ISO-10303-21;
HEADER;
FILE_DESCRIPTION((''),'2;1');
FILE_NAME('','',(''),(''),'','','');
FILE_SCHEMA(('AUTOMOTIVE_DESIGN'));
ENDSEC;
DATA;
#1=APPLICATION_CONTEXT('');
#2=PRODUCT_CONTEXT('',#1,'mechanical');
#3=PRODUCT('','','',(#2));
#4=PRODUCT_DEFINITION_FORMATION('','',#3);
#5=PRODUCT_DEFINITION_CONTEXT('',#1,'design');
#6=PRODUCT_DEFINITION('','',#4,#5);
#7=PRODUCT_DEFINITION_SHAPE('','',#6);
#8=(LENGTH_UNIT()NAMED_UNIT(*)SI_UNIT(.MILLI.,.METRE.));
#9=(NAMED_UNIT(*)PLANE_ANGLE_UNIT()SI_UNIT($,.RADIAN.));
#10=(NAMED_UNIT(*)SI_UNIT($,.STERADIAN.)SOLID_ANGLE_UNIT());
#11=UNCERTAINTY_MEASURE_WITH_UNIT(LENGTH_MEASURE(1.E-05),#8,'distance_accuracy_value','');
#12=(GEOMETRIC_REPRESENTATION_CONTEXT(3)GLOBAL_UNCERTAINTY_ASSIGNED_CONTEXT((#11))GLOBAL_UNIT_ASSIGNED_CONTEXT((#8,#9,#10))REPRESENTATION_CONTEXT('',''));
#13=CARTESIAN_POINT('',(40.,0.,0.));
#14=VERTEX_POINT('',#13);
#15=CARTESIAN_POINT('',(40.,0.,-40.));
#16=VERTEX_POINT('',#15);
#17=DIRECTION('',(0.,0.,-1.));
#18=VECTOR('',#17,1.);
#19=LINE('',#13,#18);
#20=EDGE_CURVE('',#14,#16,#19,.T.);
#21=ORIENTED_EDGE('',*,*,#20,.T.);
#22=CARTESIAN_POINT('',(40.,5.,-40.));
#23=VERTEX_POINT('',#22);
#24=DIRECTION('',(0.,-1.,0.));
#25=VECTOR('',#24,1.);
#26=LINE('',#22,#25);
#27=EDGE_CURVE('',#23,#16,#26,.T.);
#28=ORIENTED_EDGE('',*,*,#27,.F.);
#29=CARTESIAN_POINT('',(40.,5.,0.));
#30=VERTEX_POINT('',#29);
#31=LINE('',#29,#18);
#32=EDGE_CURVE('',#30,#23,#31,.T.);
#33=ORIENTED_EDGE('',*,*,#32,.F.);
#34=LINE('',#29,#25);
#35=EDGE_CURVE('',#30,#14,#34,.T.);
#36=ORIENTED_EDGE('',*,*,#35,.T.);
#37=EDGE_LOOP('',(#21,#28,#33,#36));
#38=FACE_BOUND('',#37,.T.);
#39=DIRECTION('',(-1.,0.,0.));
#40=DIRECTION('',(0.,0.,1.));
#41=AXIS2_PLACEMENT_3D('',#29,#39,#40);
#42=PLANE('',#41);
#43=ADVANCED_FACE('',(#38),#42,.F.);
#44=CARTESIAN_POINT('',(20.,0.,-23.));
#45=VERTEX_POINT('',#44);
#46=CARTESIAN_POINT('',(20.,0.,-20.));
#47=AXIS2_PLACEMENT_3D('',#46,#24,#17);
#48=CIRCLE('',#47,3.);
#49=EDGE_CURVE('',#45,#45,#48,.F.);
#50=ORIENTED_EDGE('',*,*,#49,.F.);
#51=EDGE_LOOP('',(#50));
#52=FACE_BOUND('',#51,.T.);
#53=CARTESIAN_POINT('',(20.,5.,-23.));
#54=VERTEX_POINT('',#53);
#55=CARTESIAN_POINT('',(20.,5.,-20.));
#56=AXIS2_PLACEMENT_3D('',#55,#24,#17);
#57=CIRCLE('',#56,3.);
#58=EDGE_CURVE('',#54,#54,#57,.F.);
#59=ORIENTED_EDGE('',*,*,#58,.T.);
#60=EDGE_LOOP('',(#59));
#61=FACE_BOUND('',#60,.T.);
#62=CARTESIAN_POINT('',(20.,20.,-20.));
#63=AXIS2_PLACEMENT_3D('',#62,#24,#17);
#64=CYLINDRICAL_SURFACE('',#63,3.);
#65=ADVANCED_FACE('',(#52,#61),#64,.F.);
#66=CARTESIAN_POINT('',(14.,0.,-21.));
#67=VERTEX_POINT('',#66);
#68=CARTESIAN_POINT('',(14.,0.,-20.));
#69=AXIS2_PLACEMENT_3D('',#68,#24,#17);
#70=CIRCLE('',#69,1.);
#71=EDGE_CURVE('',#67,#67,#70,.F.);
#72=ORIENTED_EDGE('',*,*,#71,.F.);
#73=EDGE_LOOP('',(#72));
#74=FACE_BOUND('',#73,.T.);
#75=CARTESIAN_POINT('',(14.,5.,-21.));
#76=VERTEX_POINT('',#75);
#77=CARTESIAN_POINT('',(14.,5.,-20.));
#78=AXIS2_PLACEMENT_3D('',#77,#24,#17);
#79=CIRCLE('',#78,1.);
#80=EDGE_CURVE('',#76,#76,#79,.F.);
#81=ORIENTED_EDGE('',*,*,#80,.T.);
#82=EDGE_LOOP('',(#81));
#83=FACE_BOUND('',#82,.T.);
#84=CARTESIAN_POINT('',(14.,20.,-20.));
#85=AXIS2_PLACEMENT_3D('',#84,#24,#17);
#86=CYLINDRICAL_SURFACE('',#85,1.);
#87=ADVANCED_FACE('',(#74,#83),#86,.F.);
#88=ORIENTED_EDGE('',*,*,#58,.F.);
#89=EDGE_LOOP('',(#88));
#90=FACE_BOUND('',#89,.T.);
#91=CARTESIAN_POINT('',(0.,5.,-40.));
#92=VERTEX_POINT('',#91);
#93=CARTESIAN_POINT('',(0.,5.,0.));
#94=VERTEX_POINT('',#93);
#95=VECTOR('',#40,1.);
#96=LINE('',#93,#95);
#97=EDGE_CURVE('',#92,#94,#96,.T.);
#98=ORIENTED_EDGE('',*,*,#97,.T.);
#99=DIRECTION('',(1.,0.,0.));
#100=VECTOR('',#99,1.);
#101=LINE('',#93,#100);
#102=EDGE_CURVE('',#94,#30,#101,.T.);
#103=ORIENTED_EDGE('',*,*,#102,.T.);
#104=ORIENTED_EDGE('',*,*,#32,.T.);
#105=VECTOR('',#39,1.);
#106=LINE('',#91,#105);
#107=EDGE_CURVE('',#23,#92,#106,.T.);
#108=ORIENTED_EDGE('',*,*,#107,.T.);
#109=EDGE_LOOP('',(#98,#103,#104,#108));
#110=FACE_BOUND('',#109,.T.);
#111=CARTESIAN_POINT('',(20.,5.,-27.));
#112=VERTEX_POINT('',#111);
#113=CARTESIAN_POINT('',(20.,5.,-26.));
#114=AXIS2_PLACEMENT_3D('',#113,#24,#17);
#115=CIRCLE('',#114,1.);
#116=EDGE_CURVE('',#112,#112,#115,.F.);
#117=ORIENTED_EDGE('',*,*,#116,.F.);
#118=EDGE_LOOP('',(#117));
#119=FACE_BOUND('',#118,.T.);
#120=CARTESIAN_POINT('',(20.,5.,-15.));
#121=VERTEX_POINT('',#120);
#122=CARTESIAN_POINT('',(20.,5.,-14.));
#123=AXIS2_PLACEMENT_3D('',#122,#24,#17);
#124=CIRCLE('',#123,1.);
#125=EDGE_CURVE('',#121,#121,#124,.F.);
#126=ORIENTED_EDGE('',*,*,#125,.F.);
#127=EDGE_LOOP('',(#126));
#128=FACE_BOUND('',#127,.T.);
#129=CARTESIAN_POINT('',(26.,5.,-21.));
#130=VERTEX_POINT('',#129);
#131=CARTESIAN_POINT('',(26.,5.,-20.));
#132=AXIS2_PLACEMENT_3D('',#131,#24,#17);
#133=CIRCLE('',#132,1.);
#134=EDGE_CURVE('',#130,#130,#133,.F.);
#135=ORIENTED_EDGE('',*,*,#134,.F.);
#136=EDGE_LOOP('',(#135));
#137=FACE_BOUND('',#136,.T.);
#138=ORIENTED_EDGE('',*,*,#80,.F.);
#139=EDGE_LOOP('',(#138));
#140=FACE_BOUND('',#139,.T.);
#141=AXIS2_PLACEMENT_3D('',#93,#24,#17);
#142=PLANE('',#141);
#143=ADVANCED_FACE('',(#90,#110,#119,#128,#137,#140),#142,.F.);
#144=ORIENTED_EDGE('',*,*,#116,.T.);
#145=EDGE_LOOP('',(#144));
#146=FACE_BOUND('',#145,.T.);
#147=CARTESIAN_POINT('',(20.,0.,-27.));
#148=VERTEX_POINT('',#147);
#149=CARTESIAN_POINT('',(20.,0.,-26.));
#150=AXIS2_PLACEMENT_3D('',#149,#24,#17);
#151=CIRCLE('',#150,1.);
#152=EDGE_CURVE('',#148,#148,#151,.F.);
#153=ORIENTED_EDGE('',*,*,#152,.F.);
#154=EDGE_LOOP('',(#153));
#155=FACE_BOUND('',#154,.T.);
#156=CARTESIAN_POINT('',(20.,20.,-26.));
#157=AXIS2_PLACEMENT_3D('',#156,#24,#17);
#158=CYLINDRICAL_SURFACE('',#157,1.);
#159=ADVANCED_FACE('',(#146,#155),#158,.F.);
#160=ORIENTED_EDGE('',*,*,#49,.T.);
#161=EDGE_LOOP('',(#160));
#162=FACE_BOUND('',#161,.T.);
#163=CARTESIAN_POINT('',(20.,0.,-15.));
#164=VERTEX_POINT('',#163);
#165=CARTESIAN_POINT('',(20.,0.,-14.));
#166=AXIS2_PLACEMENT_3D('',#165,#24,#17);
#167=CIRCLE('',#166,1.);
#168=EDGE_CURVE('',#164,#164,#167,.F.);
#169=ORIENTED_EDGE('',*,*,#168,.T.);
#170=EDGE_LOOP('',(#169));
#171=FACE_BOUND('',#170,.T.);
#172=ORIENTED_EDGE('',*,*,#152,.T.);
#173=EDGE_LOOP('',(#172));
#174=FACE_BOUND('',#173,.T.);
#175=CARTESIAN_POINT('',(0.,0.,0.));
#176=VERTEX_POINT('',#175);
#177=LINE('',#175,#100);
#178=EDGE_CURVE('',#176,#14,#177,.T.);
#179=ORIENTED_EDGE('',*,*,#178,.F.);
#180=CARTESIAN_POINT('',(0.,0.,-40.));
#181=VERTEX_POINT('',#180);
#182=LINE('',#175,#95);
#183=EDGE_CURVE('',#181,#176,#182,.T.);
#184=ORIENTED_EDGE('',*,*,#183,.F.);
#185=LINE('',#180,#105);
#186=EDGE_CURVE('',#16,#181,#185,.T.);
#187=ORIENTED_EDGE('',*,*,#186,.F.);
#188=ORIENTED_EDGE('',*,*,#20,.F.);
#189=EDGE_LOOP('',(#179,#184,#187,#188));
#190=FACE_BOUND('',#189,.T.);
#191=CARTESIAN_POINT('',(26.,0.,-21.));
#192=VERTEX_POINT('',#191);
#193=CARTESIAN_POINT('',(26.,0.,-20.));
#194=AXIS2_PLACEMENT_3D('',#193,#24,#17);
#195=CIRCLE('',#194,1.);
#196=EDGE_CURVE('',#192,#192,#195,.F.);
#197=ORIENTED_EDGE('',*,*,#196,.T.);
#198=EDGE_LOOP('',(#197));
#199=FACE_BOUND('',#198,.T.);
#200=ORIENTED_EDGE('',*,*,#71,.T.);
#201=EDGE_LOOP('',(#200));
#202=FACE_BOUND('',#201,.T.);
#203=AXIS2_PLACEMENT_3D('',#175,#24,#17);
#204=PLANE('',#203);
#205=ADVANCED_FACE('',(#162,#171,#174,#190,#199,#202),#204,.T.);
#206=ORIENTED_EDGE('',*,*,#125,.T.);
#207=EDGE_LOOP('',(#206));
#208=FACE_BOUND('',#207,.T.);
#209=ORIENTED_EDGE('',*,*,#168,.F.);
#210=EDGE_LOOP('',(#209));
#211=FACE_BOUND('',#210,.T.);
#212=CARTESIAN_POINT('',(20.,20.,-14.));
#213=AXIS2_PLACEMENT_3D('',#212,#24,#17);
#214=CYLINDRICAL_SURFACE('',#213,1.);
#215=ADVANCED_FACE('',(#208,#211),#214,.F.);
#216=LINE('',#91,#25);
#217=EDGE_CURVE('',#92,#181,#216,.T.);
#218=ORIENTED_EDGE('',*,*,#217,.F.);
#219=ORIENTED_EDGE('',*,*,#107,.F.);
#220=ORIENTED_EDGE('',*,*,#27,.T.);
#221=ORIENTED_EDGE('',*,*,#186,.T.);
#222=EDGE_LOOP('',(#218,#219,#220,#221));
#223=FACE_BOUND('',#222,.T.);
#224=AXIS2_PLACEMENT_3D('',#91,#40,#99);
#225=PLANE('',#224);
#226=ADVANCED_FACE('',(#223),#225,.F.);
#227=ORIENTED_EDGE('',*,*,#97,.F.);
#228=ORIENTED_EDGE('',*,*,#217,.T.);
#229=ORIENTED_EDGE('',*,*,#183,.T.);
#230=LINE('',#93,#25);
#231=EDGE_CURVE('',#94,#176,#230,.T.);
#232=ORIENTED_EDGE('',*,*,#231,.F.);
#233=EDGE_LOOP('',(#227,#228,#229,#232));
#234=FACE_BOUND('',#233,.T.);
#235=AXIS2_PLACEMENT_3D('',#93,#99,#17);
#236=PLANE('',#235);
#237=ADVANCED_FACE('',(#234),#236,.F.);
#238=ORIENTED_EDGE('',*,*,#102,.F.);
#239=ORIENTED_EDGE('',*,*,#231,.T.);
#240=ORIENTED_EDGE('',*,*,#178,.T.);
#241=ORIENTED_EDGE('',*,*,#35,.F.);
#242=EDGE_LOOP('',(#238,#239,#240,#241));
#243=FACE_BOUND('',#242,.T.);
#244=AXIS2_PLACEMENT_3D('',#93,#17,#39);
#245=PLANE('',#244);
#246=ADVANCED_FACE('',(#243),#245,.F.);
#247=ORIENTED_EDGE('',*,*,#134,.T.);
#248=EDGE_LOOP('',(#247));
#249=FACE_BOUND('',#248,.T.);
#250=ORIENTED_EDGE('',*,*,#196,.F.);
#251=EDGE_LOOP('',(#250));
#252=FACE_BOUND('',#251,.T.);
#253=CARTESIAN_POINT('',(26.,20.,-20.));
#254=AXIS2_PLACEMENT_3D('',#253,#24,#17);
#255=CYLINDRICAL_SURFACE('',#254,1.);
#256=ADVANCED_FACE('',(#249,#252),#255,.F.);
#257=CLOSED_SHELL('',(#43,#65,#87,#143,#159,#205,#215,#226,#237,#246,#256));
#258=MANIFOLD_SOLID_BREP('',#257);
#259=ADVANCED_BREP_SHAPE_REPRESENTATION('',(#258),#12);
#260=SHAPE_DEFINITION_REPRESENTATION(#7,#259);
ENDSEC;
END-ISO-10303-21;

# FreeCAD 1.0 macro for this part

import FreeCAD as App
import Part
import Sketcher


def add_polygon(sketch, points):
    """Adds a closed chain of lines whose ends are joined by coincident constraints."""
    first, n = sketch.GeometryCount, len(points)
    for a, b in zip(points, points[1:] + points[:1]):
        sketch.addGeometry(Part.LineSegment(App.Vector(*a, 0), App.Vector(*b, 0)), False)
    for i in range(n):
        sketch.addConstraint(Sketcher.Constraint("Coincident", first + i, 2, first + (i + 1) % n, 1))

doc = App.newDocument("Part")
body = doc.addObject("PartDesign::Body", "Body")

# Sketch on XZ plane
sketch1 = body.newObject("Sketcher::SketchObject", "Sketch")
sketch1.AttachmentSupport = (doc.getObject("XZ_Plane"), [""])
sketch1.MapMode = "FlatFace"
add_polygon(sketch1, [(0, -40), (0, 0), (40, 0), (40, -40)])  # lines 0-3
sketch1.addConstraint([
    Sketcher.Constraint("Vertical", 0),
    Sketcher.Constraint("Horizontal", 1),
    Sketcher.Constraint("Vertical", 2),
    Sketcher.Constraint("Horizontal", 3),
    Sketcher.Constraint("Coincident", 0, 2, -1, 1),
    Sketcher.Constraint("Equal", 3, 0),
    Sketcher.Constraint("DistanceX", 1, 1, 1, 2, 40.0),
])
pad1 = body.newObject("PartDesign::Pad", "Pad")
pad1.Profile = sketch1
pad1.Length = 5
pad1.Reversed = True

# Sketch on XZ plane
sketch2 = body.newObject("Sketcher::SketchObject", "Sketch001")
sketch2.AttachmentSupport = (doc.getObject("XZ_Plane"), [""])
sketch2.MapMode = "FlatFace"
sketch2.AttachmentOffset = App.Placement(App.Vector(0, 0, -5), App.Rotation())
sketch2.addGeometry([
    Part.Circle(App.Vector(20, -20, 0), App.Vector(0, 0, 1), 3),  # 0
    Part.Circle(App.Vector(20, -14, 0), App.Vector(0, 0, 1), 1),  # 1
    Part.Circle(App.Vector(26, -20, 0), App.Vector(0, 0, 1), 1),  # 2
    Part.Circle(App.Vector(14, -20, 0), App.Vector(0, 0, 1), 1),  # 3
    Part.Circle(App.Vector(20, -26, 0), App.Vector(0, 0, 1), 1),  # 4
], False)
sketch2.addConstraint([
    Sketcher.Constraint("Equal", 1, 2),
    Sketcher.Constraint("Equal", 2, 3),
    Sketcher.Constraint("Equal", 3, 4),
    Sketcher.Constraint("Horizontal", 0, 3, 2, 3),
    Sketcher.Constraint("Horizontal", 2, 3, 3, 3),
    Sketcher.Constraint("Vertical", 0, 3, 1, 3),
    Sketcher.Constraint("Vertical", 1, 3, 4, 3),
    Sketcher.Constraint("Diameter", 0, 6.0),
    Sketcher.Constraint("Diameter", 1, 2.0),
    Sketcher.Constraint("DistanceX", -1, 1, 0, 3, 20.0),
    Sketcher.Constraint("DistanceY", 0, 3, -1, 1, 20.0),
    Sketcher.Constraint("DistanceY", 1, 3, -1, 1, 14.0),
    Sketcher.Constraint("DistanceX", -1, 1, 2, 3, 26.0),
    Sketcher.Constraint("DistanceX", -1, 1, 3, 3, 14.0),
    Sketcher.Constraint("DistanceY", 4, 3, -1, 1, 26.0),
])
pocket1 = body.newObject("PartDesign::Pocket", "Pocket")
pocket1.Profile = sketch2
pocket1.Type = "ThroughAll"
pocket1.Midplane = True

doc.recompute()
